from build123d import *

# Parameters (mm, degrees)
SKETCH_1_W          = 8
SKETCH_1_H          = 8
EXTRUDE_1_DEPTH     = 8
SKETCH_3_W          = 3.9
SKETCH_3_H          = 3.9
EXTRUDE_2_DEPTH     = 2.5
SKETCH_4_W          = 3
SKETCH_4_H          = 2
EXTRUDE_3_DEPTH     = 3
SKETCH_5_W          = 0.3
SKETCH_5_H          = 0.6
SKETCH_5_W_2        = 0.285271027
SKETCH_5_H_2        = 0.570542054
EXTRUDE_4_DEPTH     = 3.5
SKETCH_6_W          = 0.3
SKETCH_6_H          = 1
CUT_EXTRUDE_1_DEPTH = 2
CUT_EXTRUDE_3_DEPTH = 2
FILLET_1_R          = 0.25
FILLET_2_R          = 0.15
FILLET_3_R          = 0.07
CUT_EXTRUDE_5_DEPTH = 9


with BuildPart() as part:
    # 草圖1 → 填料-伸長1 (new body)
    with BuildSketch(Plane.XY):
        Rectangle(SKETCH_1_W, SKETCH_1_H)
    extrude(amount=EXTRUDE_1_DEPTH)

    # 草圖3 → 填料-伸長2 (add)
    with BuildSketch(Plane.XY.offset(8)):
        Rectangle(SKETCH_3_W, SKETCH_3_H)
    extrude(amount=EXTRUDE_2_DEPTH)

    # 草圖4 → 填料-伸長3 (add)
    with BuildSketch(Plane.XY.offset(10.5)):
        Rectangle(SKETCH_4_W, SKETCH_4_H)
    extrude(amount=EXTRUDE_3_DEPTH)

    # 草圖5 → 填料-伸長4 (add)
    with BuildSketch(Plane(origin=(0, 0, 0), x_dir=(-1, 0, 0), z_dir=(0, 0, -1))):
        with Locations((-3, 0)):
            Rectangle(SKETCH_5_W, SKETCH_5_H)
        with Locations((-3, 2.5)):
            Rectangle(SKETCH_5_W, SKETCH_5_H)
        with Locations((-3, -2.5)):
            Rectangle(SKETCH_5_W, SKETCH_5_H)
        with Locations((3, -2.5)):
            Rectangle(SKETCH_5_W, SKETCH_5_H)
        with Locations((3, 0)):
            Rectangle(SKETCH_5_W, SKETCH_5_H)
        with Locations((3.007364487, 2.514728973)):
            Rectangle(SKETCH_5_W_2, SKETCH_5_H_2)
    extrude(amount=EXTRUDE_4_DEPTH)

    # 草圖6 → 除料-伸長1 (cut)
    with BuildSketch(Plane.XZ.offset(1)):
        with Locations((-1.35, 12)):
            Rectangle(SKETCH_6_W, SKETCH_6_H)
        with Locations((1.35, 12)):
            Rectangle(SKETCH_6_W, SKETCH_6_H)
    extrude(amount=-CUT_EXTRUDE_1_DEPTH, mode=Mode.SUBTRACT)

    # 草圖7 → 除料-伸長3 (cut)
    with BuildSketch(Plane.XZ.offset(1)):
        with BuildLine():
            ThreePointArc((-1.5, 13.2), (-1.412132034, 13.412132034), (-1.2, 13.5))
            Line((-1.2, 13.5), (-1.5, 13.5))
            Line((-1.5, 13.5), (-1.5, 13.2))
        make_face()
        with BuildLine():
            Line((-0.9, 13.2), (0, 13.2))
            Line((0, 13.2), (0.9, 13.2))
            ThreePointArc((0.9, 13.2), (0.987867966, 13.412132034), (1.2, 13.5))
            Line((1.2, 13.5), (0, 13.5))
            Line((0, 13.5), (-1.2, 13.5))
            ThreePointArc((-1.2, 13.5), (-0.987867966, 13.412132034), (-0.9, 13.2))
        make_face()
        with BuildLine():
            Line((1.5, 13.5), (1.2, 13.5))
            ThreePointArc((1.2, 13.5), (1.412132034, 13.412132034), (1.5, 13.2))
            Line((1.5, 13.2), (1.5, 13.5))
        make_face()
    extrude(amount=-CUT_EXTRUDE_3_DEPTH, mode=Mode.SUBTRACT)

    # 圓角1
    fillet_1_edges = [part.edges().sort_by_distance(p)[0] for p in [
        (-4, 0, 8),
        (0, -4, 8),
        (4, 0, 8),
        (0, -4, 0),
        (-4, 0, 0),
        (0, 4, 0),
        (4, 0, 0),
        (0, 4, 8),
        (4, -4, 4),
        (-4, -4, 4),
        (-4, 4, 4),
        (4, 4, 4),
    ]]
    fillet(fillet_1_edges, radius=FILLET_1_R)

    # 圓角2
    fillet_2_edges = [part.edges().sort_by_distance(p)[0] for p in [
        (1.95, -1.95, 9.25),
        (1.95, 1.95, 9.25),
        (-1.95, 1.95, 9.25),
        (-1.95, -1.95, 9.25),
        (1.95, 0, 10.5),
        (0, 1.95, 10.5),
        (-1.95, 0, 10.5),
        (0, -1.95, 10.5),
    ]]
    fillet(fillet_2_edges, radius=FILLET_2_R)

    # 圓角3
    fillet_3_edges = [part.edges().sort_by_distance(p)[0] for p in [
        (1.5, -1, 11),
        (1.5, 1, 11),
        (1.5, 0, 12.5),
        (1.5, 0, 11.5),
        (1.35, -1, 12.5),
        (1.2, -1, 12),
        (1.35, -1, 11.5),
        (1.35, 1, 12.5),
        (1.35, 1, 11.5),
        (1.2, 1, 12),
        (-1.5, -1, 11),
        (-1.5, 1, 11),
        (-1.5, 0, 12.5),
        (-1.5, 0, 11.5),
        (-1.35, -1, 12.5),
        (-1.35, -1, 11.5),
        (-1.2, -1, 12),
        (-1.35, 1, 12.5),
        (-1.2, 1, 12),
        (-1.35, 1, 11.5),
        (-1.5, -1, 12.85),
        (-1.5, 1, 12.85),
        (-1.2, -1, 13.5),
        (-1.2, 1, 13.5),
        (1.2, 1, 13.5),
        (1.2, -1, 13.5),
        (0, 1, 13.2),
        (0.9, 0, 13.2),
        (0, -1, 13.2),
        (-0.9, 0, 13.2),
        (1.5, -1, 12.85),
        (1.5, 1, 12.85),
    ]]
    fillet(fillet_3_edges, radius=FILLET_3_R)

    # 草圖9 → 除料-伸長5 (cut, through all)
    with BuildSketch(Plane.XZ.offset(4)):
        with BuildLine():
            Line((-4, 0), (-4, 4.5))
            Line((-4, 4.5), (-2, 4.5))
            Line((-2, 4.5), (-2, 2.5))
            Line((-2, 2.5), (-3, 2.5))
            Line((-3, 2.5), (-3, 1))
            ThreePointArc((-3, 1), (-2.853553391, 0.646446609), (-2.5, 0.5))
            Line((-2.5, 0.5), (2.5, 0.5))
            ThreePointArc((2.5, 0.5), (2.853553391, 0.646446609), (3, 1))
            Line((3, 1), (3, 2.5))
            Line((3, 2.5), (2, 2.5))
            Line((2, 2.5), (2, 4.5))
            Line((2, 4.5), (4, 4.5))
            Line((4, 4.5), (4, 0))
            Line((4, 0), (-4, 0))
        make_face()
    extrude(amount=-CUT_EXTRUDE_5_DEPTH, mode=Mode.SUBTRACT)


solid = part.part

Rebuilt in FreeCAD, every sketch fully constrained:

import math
import FreeCAD as App
import Part
import Sketcher

V = App.Vector
Q = App.Units.Quantity


def edges_at(feature, points):
    """Names of the edges that pass closest to the given points."""
    edges = feature.Shape.Edges
    near = lambda p: min(range(len(edges)), key=lambda i: edges[i].distToShape(Part.Vertex(*p))[0])
    return sorted({f"Edge{near(p) + 1}" for p in points})

doc = App.newDocument("Part")
body = doc.addObject("PartDesign::Body", "Body")
body.AllowCompound = True

# Sketch on XY plane
sketch1 = doc.addObject("Sketcher::SketchObject", "Sketch")
body.addObject(sketch1)
sketch1.AttachmentSupport = (doc.XY_Plane, [""])
sketch1.MapMode = "FlatFace"
sketch1.addGeometry(Part.LineSegment(V(-4, 4, 0), V(-4, -4, 0)), False)
sketch1.addGeometry(Part.LineSegment(V(-4, -4, 0), V(4, -4, 0)), False)
sketch1.addGeometry(Part.LineSegment(V(4, -4, 0), V(4, 4, 0)), False)
sketch1.addGeometry(Part.LineSegment(V(4, 4, 0), V(-4, 4, 0)), False)
sketch1.addConstraint(Sketcher.Constraint("Coincident", 0, 2, 1, 1))
sketch1.addConstraint(Sketcher.Constraint("Coincident", 1, 2, 2, 1))
sketch1.addConstraint(Sketcher.Constraint("Coincident", 2, 2, 3, 1))
sketch1.addConstraint(Sketcher.Constraint("Coincident", 3, 2, 0, 1))
sketch1.addConstraint(Sketcher.Constraint("Vertical", 0))
sketch1.addConstraint(Sketcher.Constraint("Horizontal", 1))
sketch1.addConstraint(Sketcher.Constraint("Vertical", 2))
sketch1.addConstraint(Sketcher.Constraint("Horizontal", 3))
sketch1.addConstraint(Sketcher.Constraint("Symmetric", 0, 2, 2, 2, -1, 1))
sketch1.addConstraint(Sketcher.Constraint("Equal", 3, 0))
sketch1.addConstraint(Sketcher.Constraint("DistanceX", 1, 1, 1, 2, Q("8 mm")))
pad1 = doc.addObject("PartDesign::Pad", "Pad")
body.addObject(pad1)
pad1.Profile = sketch1
pad1.Length = 8

# Sketch on XY plane
sketch2 = doc.addObject("Sketcher::SketchObject", "Sketch001")
body.addObject(sketch2)
sketch2.AttachmentSupport = (doc.XY_Plane, [""])
sketch2.MapMode = "FlatFace"
sketch2.AttachmentOffset = App.Placement(V(0, 0, 8), App.Rotation())
sketch2.addGeometry(Part.LineSegment(V(-1.9, 1.9, 0), V(-1.9, -1.9, 0)), False)
sketch2.addGeometry(Part.LineSegment(V(-1.9, -1.9, 0), V(1.9, -1.9, 0)), False)
sketch2.addGeometry(Part.LineSegment(V(1.9, -1.9, 0), V(1.9, 1.9, 0)), False)
sketch2.addGeometry(Part.LineSegment(V(1.9, 1.9, 0), V(-1.9, 1.9, 0)), False)
sketch2.addConstraint(Sketcher.Constraint("Coincident", 0, 2, 1, 1))
sketch2.addConstraint(Sketcher.Constraint("Coincident", 1, 2, 2, 1))
sketch2.addConstraint(Sketcher.Constraint("Coincident", 2, 2, 3, 1))
sketch2.addConstraint(Sketcher.Constraint("Coincident", 3, 2, 0, 1))
sketch2.addConstraint(Sketcher.Constraint("Vertical", 0))
sketch2.addConstraint(Sketcher.Constraint("Horizontal", 1))
sketch2.addConstraint(Sketcher.Constraint("Vertical", 2))
sketch2.addConstraint(Sketcher.Constraint("Horizontal", 3))
sketch2.addConstraint(Sketcher.Constraint("Symmetric", 0, 2, 2, 2, -1, 1))
sketch2.addConstraint(Sketcher.Constraint("Equal", 3, 0))
sketch2.addConstraint(Sketcher.Constraint("DistanceX", 1, 1, 1, 2, Q("3.9 mm")))
pad2 = doc.addObject("PartDesign::Pad", "Pad001")
body.addObject(pad2)
pad2.Profile = sketch2
pad2.Length = 2.5

# Sketch on XY plane
sketch3 = doc.addObject("Sketcher::SketchObject", "Sketch002")
body.addObject(sketch3)
sketch3.AttachmentSupport = (doc.XY_Plane, [""])
sketch3.MapMode = "FlatFace"
sketch3.AttachmentOffset = App.Placement(V(0, 0, 10.5), App.Rotation())
sketch3.addGeometry(Part.LineSegment(V(-1.5, 1, 0), V(-1.5, -1, 0)), False)
sketch3.addGeometry(Part.LineSegment(V(-1.5, -1, 0), V(1.5, -1, 0)), False)
sketch3.addGeometry(Part.LineSegment(V(1.5, -1, 0), V(1.5, 1, 0)), False)
sketch3.addGeometry(Part.LineSegment(V(1.5, 1, 0), V(-1.5, 1, 0)), False)
sketch3.addConstraint(Sketcher.Constraint("Coincident", 0, 2, 1, 1))
sketch3.addConstraint(Sketcher.Constraint("Coincident", 1, 2, 2, 1))
sketch3.addConstraint(Sketcher.Constraint("Coincident", 2, 2, 3, 1))
sketch3.addConstraint(Sketcher.Constraint("Coincident", 3, 2, 0, 1))
sketch3.addConstraint(Sketcher.Constraint("Vertical", 0))
sketch3.addConstraint(Sketcher.Constraint("Horizontal", 1))
sketch3.addConstraint(Sketcher.Constraint("Vertical", 2))
sketch3.addConstraint(Sketcher.Constraint("Horizontal", 3))
sketch3.addConstraint(Sketcher.Constraint("Symmetric", 0, 2, 2, 2, -1, 1))
sketch3.addConstraint(Sketcher.Constraint("DistanceX", 1, 1, 1, 2, Q("3 mm")))
sketch3.addConstraint(Sketcher.Constraint("DistanceY", 0, 2, 0, 1, Q("2 mm")))
pad3 = doc.addObject("PartDesign::Pad", "Pad002")
body.addObject(pad3)
pad3.Profile = sketch3
pad3.Length = 3

# Sketch on XY plane
sketch4 = doc.addObject("Sketcher::SketchObject", "Sketch003")
body.addObject(sketch4)
sketch4.AttachmentSupport = (doc.XY_Plane, [""])
sketch4.MapMode = "FlatFace"
sketch4.addGeometry(Part.LineSegment(V(3.15, 0.3, 0), V(3.15, -0.3, 0)), False)
sketch4.addGeometry(Part.LineSegment(V(3.15, -0.3, 0), V(2.85, -0.3, 0)), False)
sketch4.addGeometry(Part.LineSegment(V(2.85, -0.3, 0), V(2.85, 0.3, 0)), False)
sketch4.addGeometry(Part.LineSegment(V(2.85, 0.3, 0), V(3.15, 0.3, 0)), False)
sketch4.addGeometry(Part.LineSegment(V(3.15, 2.8, 0), V(3.15, 2.2, 0)), False)
sketch4.addGeometry(Part.LineSegment(V(3.15, 2.2, 0), V(2.85, 2.2, 0)), False)
sketch4.addGeometry(Part.LineSegment(V(2.85, 2.2, 0), V(2.85, 2.8, 0)), False)
sketch4.addGeometry(Part.LineSegment(V(2.85, 2.8, 0), V(3.15, 2.8, 0)), False)
sketch4.addGeometry(Part.LineSegment(V(3.15, -2.2, 0), V(3.15, -2.8, 0)), False)
sketch4.addGeometry(Part.LineSegment(V(3.15, -2.8, 0), V(2.85, -2.8, 0)), False)
sketch4.addGeometry(Part.LineSegment(V(2.85, -2.8, 0), V(2.85, -2.2, 0)), False)
sketch4.addGeometry(Part.LineSegment(V(2.85, -2.2, 0), V(3.15, -2.2, 0)), False)
sketch4.addGeometry(Part.LineSegment(V(-2.85, -2.2, 0), V(-2.85, -2.8, 0)), False)
sketch4.addGeometry(Part.LineSegment(V(-2.85, -2.8, 0), V(-3.15, -2.8, 0)), False)
sketch4.addGeometry(Part.LineSegment(V(-3.15, -2.8, 0), V(-3.15, -2.2, 0)), False)
sketch4.addGeometry(Part.LineSegment(V(-3.15, -2.2, 0), V(-2.85, -2.2, 0)), False)
sketch4.addGeometry(Part.LineSegment(V(-2.85, 0.3, 0), V(-2.85, -0.3, 0)), False)
sketch4.addGeometry(Part.LineSegment(V(-2.85, -0.3, 0), V(-3.15, -0.3, 0)), False)
sketch4.addGeometry(Part.LineSegment(V(-3.15, -0.3, 0), V(-3.15, 0.3, 0)), False)
sketch4.addGeometry(Part.LineSegment(V(-3.15, 0.3, 0), V(-2.85, 0.3, 0)), False)
sketch4.addGeometry(Part.LineSegment(V(-2.86, 2.8, 0), V(-2.86, 2.23, 0)), False)
sketch4.addGeometry(Part.LineSegment(V(-2.86, 2.23, 0), V(-3.15, 2.23, 0)), False)
sketch4.addGeometry(Part.LineSegment(V(-3.15, 2.23, 0), V(-3.15, 2.8, 0)), False)
sketch4.addGeometry(Part.LineSegment(V(-3.15, 2.8, 0), V(-2.86, 2.8, 0)), False)
sketch4.addConstraint(Sketcher.Constraint("Coincident", 0, 2, 1, 1))
sketch4.addConstraint(Sketcher.Constraint("Coincident", 1, 2, 2, 1))
sketch4.addConstraint(Sketcher.Constraint("Coincident", 2, 2, 3, 1))
sketch4.addConstraint(Sketcher.Constraint("Coincident", 3, 2, 0, 1))
sketch4.addConstraint(Sketcher.Constraint("Coincident", 4, 2, 5, 1))
sketch4.addConstraint(Sketcher.Constraint("Coincident", 5, 2, 6, 1))
sketch4.addConstraint(Sketcher.Constraint("Coincident", 6, 2, 7, 1))
sketch4.addConstraint(Sketcher.Constraint("Coincident", 7, 2, 4, 1))
sketch4.addConstraint(Sketcher.Constraint("Coincident", 8, 2, 9, 1))
sketch4.addConstraint(Sketcher.Constraint("Coincident", 9, 2, 10, 1))
sketch4.addConstraint(Sketcher.Constraint("Coincident", 10, 2, 11, 1))
sketch4.addConstraint(Sketcher.Constraint("Coincident", 11, 2, 8, 1))
sketch4.addConstraint(Sketcher.Constraint("Coincident", 12, 2, 13, 1))
sketch4.addConstraint(Sketcher.Constraint("Coincident", 13, 2, 14, 1))
sketch4.addConstraint(Sketcher.Constraint("Coincident", 14, 2, 15, 1))
sketch4.addConstraint(Sketcher.Constraint("Coincident", 15, 2, 12, 1))
sketch4.addConstraint(Sketcher.Constraint("Coincident", 16, 2, 17, 1))
sketch4.addConstraint(Sketcher.Constraint("Coincident", 17, 2, 18, 1))
sketch4.addConstraint(Sketcher.Constraint("Coincident", 18, 2, 19, 1))
sketch4.addConstraint(Sketcher.Constraint("Coincident", 19, 2, 16, 1))
sketch4.addConstraint(Sketcher.Constraint("Coincident", 20, 2, 21, 1))
sketch4.addConstraint(Sketcher.Constraint("Coincident", 21, 2, 22, 1))
sketch4.addConstraint(Sketcher.Constraint("Coincident", 22, 2, 23, 1))
sketch4.addConstraint(Sketcher.Constraint("Coincident", 23, 2, 20, 1))
sketch4.addConstraint(Sketcher.Constraint("Vertical", 0))
sketch4.addConstraint(Sketcher.Constraint("Horizontal", 1))
sketch4.addConstraint(Sketcher.Constraint("Vertical", 2))
sketch4.addConstraint(Sketcher.Constraint("Horizontal", 3))
sketch4.addConstraint(Sketcher.Constraint("Vertical", 4))
sketch4.addConstraint(Sketcher.Constraint("Horizontal", 5))
sketch4.addConstraint(Sketcher.Constraint("Vertical", 6))
sketch4.addConstraint(Sketcher.Constraint("Horizontal", 7))
sketch4.addConstraint(Sketcher.Constraint("Vertical", 8))
sketch4.addConstraint(Sketcher.Constraint("Horizontal", 9))
sketch4.addConstraint(Sketcher.Constraint("Vertical", 10))
sketch4.addConstraint(Sketcher.Constraint("Horizontal", 11))
sketch4.addConstraint(Sketcher.Constraint("Vertical", 12))
sketch4.addConstraint(Sketcher.Constraint("Horizontal", 13))
sketch4.addConstraint(Sketcher.Constraint("Vertical", 14))
sketch4.addConstraint(Sketcher.Constraint("Horizontal", 15))
sketch4.addConstraint(Sketcher.Constraint("Vertical", 16))
sketch4.addConstraint(Sketcher.Constraint("Horizontal", 17))
sketch4.addConstraint(Sketcher.Constraint("Vertical", 18))
sketch4.addConstraint(Sketcher.Constraint("Horizontal", 19))
sketch4.addConstraint(Sketcher.Constraint("Vertical", 20))
sketch4.addConstraint(Sketcher.Constraint("Horizontal", 21))
sketch4.addConstraint(Sketcher.Constraint("Vertical", 22))
sketch4.addConstraint(Sketcher.Constraint("Horizontal", 23))
sketch4.addConstraint(Sketcher.Constraint("Symmetric", 6, 2, 12, 2, -1, 1))
sketch4.addConstraint(Sketcher.Constraint("Symmetric", 4, 2, 14, 2, -1, 1))
sketch4.addConstraint(Sketcher.Constraint("Symmetric", 2, 2, 16, 2, -1, 1))
sketch4.addConstraint(Sketcher.Constraint("Symmetric", 0, 2, 18, 2, -1, 1))
sketch4.addConstraint(Sketcher.Constraint("Symmetric", 8, 2, 22, 2, -1, 1))
sketch4.addConstraint(Sketcher.Constraint("Symmetric", 9, 2, 12, 2, -2))
sketch4.addConstraint(Sketcher.Constraint("Symmetric", 11, 2, 14, 2, -2))
sketch4.addConstraint(Sketcher.Constraint("Horizontal", 1, 2, 16, 2))
sketch4.addConstraint(Sketcher.Constraint("Vertical", 3, 2, 4, 2))
sketch4.addConstraint(Sketcher.Constraint("Vertical", 2, 2, 5, 2))
sketch4.addConstraint(Sketcher.Constraint("Equal", 2, 4))
sketch4.addConstraint(Sketcher.Constraint("DistanceX", 1, 2, 1, 1, Q("0.3 mm")))
sketch4.addConstraint(Sketcher.Constraint("DistanceY", 0, 2, 0, 1, Q("0.6 mm")))
sketch4.addConstraint(Sketcher.Constraint("DistanceY", 8, 2, 4, 2, Q("5 mm")))
sketch4.addConstraint(Sketcher.Constraint("DistanceX", 12, 2, 8, 2, Q("6 mm")))
sketch4.addConstraint(Sketcher.Constraint("DistanceX", 21, 2, 21, 1, Q("0.285271 mm")))
sketch4.addConstraint(Sketcher.Constraint("DistanceY", 20, 2, 20, 1, Q("0.570542 mm")))
pad4 = doc.addObject("PartDesign::Pad", "Pad003")
body.addObject(pad4)
pad4.Profile = sketch4
pad4.Length = 3.5
pad4.Reversed = True

# Sketch on XZ plane
sketch5 = doc.addObject("Sketcher::SketchObject", "Sketch004")
body.addObject(sketch5)
sketch5.AttachmentSupport = (doc.XZ_Plane, [""])
sketch5.MapMode = "FlatFace"
sketch5.AttachmentOffset = App.Placement(V(0, 0, 1), App.Rotation())
sketch5.addGeometry(Part.LineSegment(V(-1.5, 12.5, 0), V(-1.5, 11.5, 0)), False)
sketch5.addGeometry(Part.LineSegment(V(-1.5, 11.5, 0), V(-1.2, 11.5, 0)), False)
sketch5.addGeometry(Part.LineSegment(V(-1.2, 11.5, 0), V(-1.2, 12.5, 0)), False)
sketch5.addGeometry(Part.LineSegment(V(-1.2, 12.5, 0), V(-1.5, 12.5, 0)), False)
sketch5.addGeometry(Part.LineSegment(V(1.2, 12.5, 0), V(1.2, 11.5, 0)), False)
sketch5.addGeometry(Part.LineSegment(V(1.2, 11.5, 0), V(1.5, 11.5, 0)), False)
sketch5.addGeometry(Part.LineSegment(V(1.5, 11.5, 0), V(1.5, 12.5, 0)), False)
sketch5.addGeometry(Part.LineSegment(V(1.5, 12.5, 0), V(1.2, 12.5, 0)), False)
sketch5.addConstraint(Sketcher.Constraint("Coincident", 0, 2, 1, 1))
sketch5.addConstraint(Sketcher.Constraint("Coincident", 1, 2, 2, 1))
sketch5.addConstraint(Sketcher.Constraint("Coincident", 2, 2, 3, 1))
sketch5.addConstraint(Sketcher.Constraint("Coincident", 3, 2, 0, 1))
sketch5.addConstraint(Sketcher.Constraint("Coincident", 4, 2, 5, 1))
sketch5.addConstraint(Sketcher.Constraint("Coincident", 5, 2, 6, 1))
sketch5.addConstraint(Sketcher.Constraint("Coincident", 6, 2, 7, 1))
sketch5.addConstraint(Sketcher.Constraint("Coincident", 7, 2, 4, 1))
sketch5.addConstraint(Sketcher.Constraint("Vertical", 0))
sketch5.addConstraint(Sketcher.Constraint("Horizontal", 1))
sketch5.addConstraint(Sketcher.Constraint("Vertical", 2))
sketch5.addConstraint(Sketcher.Constraint("Horizontal", 3))
sketch5.addConstraint(Sketcher.Constraint("Vertical", 4))
sketch5.addConstraint(Sketcher.Constraint("Horizontal", 5))
sketch5.addConstraint(Sketcher.Constraint("Vertical", 6))
sketch5.addConstraint(Sketcher.Constraint("Horizontal", 7))
sketch5.addConstraint(Sketcher.Constraint("Symmetric", 1, 2, 4, 2, -2))
sketch5.addConstraint(Sketcher.Constraint("Symmetric", 3, 2, 6, 2, -2))
sketch5.addConstraint(Sketcher.Constraint("DistanceY", 0, 2, 0, 1, Q("1 mm")))
sketch5.addConstraint(Sketcher.Constraint("DistanceX", 1, 1, 1, 2, Q("0.3 mm")))
sketch5.addConstraint(Sketcher.Constraint("DistanceX", 0, 2, 5, 2, Q("3 mm")))
sketch5.addConstraint(Sketcher.Constraint("DistanceY", -1, 1, 0, 2, Q("11.5 mm")))
pocket1 = doc.addObject("PartDesign::Pocket", "Pocket")
body.addObject(pocket1)
pocket1.Profile = sketch5
pocket1.Length = 2

# Sketch on XZ plane
sketch6 = doc.addObject("Sketcher::SketchObject", "Sketch005")
body.addObject(sketch6)
sketch6.AttachmentSupport = (doc.XZ_Plane, [""])
sketch6.MapMode = "FlatFace"
sketch6.AttachmentOffset = App.Placement(V(0, 0, 1), App.Rotation())
sketch6.addGeometry(Part.ArcOfCircle(Part.Circle(V(-1.2, 13.2, 0), V(0, 0, 1), 0.3), math.radians(90), math.radians(180)), False)
sketch6.addGeometry(Part.LineSegment(V(-1.2, 13.5, 0), V(-1.5, 13.5, 0)), False)
sketch6.addGeometry(Part.LineSegment(V(-1.5, 13.5, 0), V(-1.5, 13.2, 0)), False)
sketch6.addGeometry(Part.LineSegment(V(-0.9, 13.2, 0), V(0.9, 13.2, 0)), False)
sketch6.addGeometry(Part.ArcOfCircle(Part.Circle(V(1.2, 13.2, 0), V(0, 0, 1), 0.3), math.radians(90), math.radians(180)), False)
sketch6.addGeometry(Part.LineSegment(V(1.2, 13.5, 0), V(-1.2, 13.5, 0)), False)
sketch6.addGeometry(Part.ArcOfCircle(Part.Circle(V(-1.2, 13.2, 0), V(0, 0, 1), 0.3), math.radians(0), math.radians(90)), False)
sketch6.addGeometry(Part.LineSegment(V(1.5, 13.5, 0), V(1.2, 13.5, 0)), False)
sketch6.addGeometry(Part.ArcOfCircle(Part.Circle(V(1.2, 13.2, 0), V(0, 0, 1), 0.3), math.radians(0), math.radians(90)), False)
sketch6.addGeometry(Part.LineSegment(V(1.5, 13.2, 0), V(1.5, 13.5, 0)), False)
sketch6.addConstraint(Sketcher.Constraint("Tangent", 0, 1, 1, 1))
sketch6.addConstraint(Sketcher.Constraint("Coincident", 1, 2, 2, 1))
sketch6.addConstraint(Sketcher.Constraint("Tangent", 2, 2, 0, 2))
sketch6.addConstraint(Sketcher.Constraint("Coincident", 3, 2, 4, 2))
sketch6.addConstraint(Sketcher.Constraint("Tangent", 4, 1, 5, 1))
sketch6.addConstraint(Sketcher.Constraint("Tangent", 5, 2, 6, 2))
sketch6.addConstraint(Sketcher.Constraint("Coincident", 6, 1, 3, 1))
sketch6.addConstraint(Sketcher.Constraint("Tangent", 7, 2, 8, 2))
sketch6.addConstraint(Sketcher.Constraint("Tangent", 8, 1, 9, 1))
sketch6.addConstraint(Sketcher.Constraint("Coincident", 9, 2, 7, 1))
sketch6.addConstraint(Sketcher.Constraint("Horizontal", 1))
sketch6.addConstraint(Sketcher.Constraint("Vertical", 2))
sketch6.addConstraint(Sketcher.Constraint("Horizontal", 3))
sketch6.addConstraint(Sketcher.Constraint("Horizontal", 5))
sketch6.addConstraint(Sketcher.Constraint("Horizontal", 7))
sketch6.addConstraint(Sketcher.Constraint("Vertical", 9))
sketch6.addConstraint(Sketcher.Constraint("Coincident", 6, 3, 0, 3))
sketch6.addConstraint(Sketcher.Constraint("Coincident", 8, 3, 4, 3))
sketch6.addConstraint(Sketcher.Constraint("Equal", 0, 4))
sketch6.addConstraint(Sketcher.Constraint("Equal", 4, 6))
sketch6.addConstraint(Sketcher.Constraint("Equal", 6, 8))
sketch6.addConstraint(Sketcher.Constraint("Horizontal", 2, 2, 3, 2))
sketch6.addConstraint(Sketcher.Constraint("Radius", 0, Q("0.3 mm")))
sketch6.addConstraint(Sketcher.Constraint("DistanceX", 3, 1, 3, 2, Q("1.8 mm")))
sketch6.addConstraint(Sketcher.Constraint("DistanceX", 0, 3, -1, 1, Q("1.2 mm")))
sketch6.addConstraint(Sketcher.Constraint("DistanceY", -1, 1, 0, 3, Q("13.2 mm")))
pocket2 = doc.addObject("PartDesign::Pocket", "Pocket001")
body.addObject(pocket2)
pocket2.Profile = sketch6
pocket2.Length = 2
doc.recompute()

fillet = doc.addObject("PartDesign::Fillet", "Fillet")
body.addObject(fillet)
fillet.Base = (pocket2, edges_at(pocket2, [
    (-4, 0, 8),
    (0, -4, 8),
    (4, 0, 8),
    (0, -4, 0),
    (-4, 0, 0),
    (0, 4, 0),
    (4, 0, 0),
    (0, 4, 8),
    (4, -4, 4),
    (-4, -4, 4),
    (-4, 4, 4),
    (4, 4, 4),
]))
fillet.Radius = 0.25
doc.recompute()

fillet2 = doc.addObject("PartDesign::Fillet", "Fillet001")
body.addObject(fillet2)
fillet2.Base = (fillet, edges_at(fillet, [
    (1.95, -1.95, 9.25),
    (1.95, 1.95, 9.25),
    (-1.95, 1.95, 9.25),
    (-1.95, -1.95, 9.25),
    (1.95, 0, 10.5),
    (0, 1.95, 10.5),
    (-1.95, 0, 10.5),
    (0, -1.95, 10.5),
]))
fillet2.Radius = 0.15
doc.recompute()

fillet3 = doc.addObject("PartDesign::Fillet", "Fillet002")
body.addObject(fillet3)
fillet3.Base = (fillet2, edges_at(fillet2, [
    (1.5, -1, 11),
    (1.5, 1, 11),
    (1.5, 0, 12.5),
    (1.5, 0, 11.5),
    (1.35, -1, 12.5),
    (1.2, -1, 12),
    (1.35, -1, 11.5),
    (1.35, 1, 12.5),
    (1.35, 1, 11.5),
    (1.2, 1, 12),
    (-1.5, -1, 11),
    (-1.5, 1, 11),
    (-1.5, 0, 12.5),
    (-1.5, 0, 11.5),
    (-1.35, -1, 12.5),
    (-1.35, -1, 11.5),
    (-1.2, -1, 12),
    (-1.35, 1, 12.5),
    (-1.2, 1, 12),
    (-1.35, 1, 11.5),
    (-1.5, -1, 12.85),
    (-1.5, 1, 12.85),
    (-0.988, -1, 13.412),
    (-0.988, 1, 13.412),
    (1.412, 1, 13.412),
    (1.412, -1, 13.412),
    (0, 1, 13.2),
    (0.9, 0, 13.2),
    (0, -1, 13.2),
    (-0.9, 0, 13.2),
    (1.5, -1, 12.85),
    (1.5, 1, 12.85),
]))
fillet3.Radius = 0.07

# Sketch on XZ plane
sketch7 = doc.addObject("Sketcher::SketchObject", "Sketch006")
body.addObject(sketch7)
sketch7.AttachmentSupport = (doc.XZ_Plane, [""])
sketch7.MapMode = "FlatFace"
sketch7.AttachmentOffset = App.Placement(V(0, 0, 4), App.Rotation())
sketch7.addGeometry(Part.LineSegment(V(-4, 4.5, 0), V(-4, 0, 0)), False)
sketch7.addGeometry(Part.LineSegment(V(-4, 0, 0), V(4, 0, 0)), False)
sketch7.addGeometry(Part.LineSegment(V(4, 0, 0), V(4, 4.5, 0)), False)
sketch7.addGeometry(Part.LineSegment(V(4, 4.5, 0), V(2, 4.5, 0)), False)
sketch7.addGeometry(Part.LineSegment(V(2, 4.5, 0), V(2, 2.5, 0)), False)
sketch7.addGeometry(Part.LineSegment(V(2, 2.5, 0), V(3, 2.5, 0)), False)
sketch7.addGeometry(Part.LineSegment(V(3, 2.5, 0), V(3, 1, 0)), False)
sketch7.addGeometry(Part.ArcOfCircle(Part.Circle(V(2.5, 1, 0), V(0, 0, 1), 0.5), math.radians(-90), math.radians(0)), False)
sketch7.addGeometry(Part.LineSegment(V(2.5, 0.5, 0), V(-2.5, 0.5, 0)), False)
sketch7.addGeometry(Part.ArcOfCircle(Part.Circle(V(-2.5, 1, 0), V(0, 0, 1), 0.5), math.radians(180), math.radians(270)), False)
sketch7.addGeometry(Part.LineSegment(V(-3, 1, 0), V(-3, 2.5, 0)), False)
sketch7.addGeometry(Part.LineSegment(V(-3, 2.5, 0), V(-2, 2.5, 0)), False)
sketch7.addGeometry(Part.LineSegment(V(-2, 2.5, 0), V(-2, 4.5, 0)), False)
sketch7.addGeometry(Part.LineSegment(V(-2, 4.5, 0), V(-4, 4.5, 0)), False)
sketch7.addConstraint(Sketcher.Constraint("Coincident", 0, 2, 1, 1))
sketch7.addConstraint(Sketcher.Constraint("Coincident", 1, 2, 2, 1))
sketch7.addConstraint(Sketcher.Constraint("Coincident", 2, 2, 3, 1))
sketch7.addConstraint(Sketcher.Constraint("Coincident", 3, 2, 4, 1))
sketch7.addConstraint(Sketcher.Constraint("Coincident", 4, 2, 5, 1))
sketch7.addConstraint(Sketcher.Constraint("Coincident", 5, 2, 6, 1))
sketch7.addConstraint(Sketcher.Constraint("Tangent", 6, 2, 7, 2))
sketch7.addConstraint(Sketcher.Constraint("Tangent", 7, 1, 8, 1))
sketch7.addConstraint(Sketcher.Constraint("Tangent", 8, 2, 9, 2))
sketch7.addConstraint(Sketcher.Constraint("Tangent", 9, 1, 10, 1))
sketch7.addConstraint(Sketcher.Constraint("Coincident", 10, 2, 11, 1))
sketch7.addConstraint(Sketcher.Constraint("Coincident", 11, 2, 12, 1))
sketch7.addConstraint(Sketcher.Constraint("Coincident", 12, 2, 13, 1))
sketch7.addConstraint(Sketcher.Constraint("Coincident", 13, 2, 0, 1))
sketch7.addConstraint(Sketcher.Constraint("Vertical", 0))
sketch7.addConstraint(Sketcher.Constraint("Horizontal", 1))
sketch7.addConstraint(Sketcher.Constraint("Vertical", 2))
sketch7.addConstraint(Sketcher.Constraint("Horizontal", 3))
sketch7.addConstraint(Sketcher.Constraint("Vertical", 4))
sketch7.addConstraint(Sketcher.Constraint("Horizontal", 5))
sketch7.addConstraint(Sketcher.Constraint("Vertical", 6))
sketch7.addConstraint(Sketcher.Constraint("Horizontal", 8))
sketch7.addConstraint(Sketcher.Constraint("Vertical", 10))
sketch7.addConstraint(Sketcher.Constraint("Horizontal", 11))
sketch7.addConstraint(Sketcher.Constraint("Vertical", 12))
sketch7.addConstraint(Sketcher.Constraint("Horizontal", 13))
sketch7.addConstraint(Sketcher.Constraint("Equal", 7, 9))
sketch7.addConstraint(Sketcher.Constraint("Symmetric", 0, 2, 1, 2, -1, 1))
sketch7.addConstraint(Sketcher.Constraint("Symmetric", 5, 2, 10, 2, -2))
sketch7.addConstraint(Sketcher.Constraint("Symmetric", 3, 2, 12, 2, -2))
sketch7.addConstraint(Sketcher.Constraint("Equal", 13, 4))
sketch7.addConstraint(Sketcher.Constraint("Radius", 7, Q("0.5 mm")))
sketch7.addConstraint(Sketcher.Constraint("DistanceX", 1, 1, 1, 2, Q("8 mm")))
sketch7.addConstraint(Sketcher.Constraint("DistanceX", 3, 2, 3, 1, Q("2 mm")))
sketch7.addConstraint(Sketcher.Constraint("DistanceX", 5, 1, 5, 2, Q("1 mm")))
sketch7.addConstraint(Sketcher.Constraint("DistanceY", 0, 2, 0, 1, Q("4.5 mm")))
sketch7.addConstraint(Sketcher.Constraint("DistanceY", 6, 2, 6, 1, Q("1.5 mm")))
pocket3 = doc.addObject("PartDesign::Pocket", "Pocket002")
body.addObject(pocket3)
pocket3.Profile = sketch7
pocket3.Type = "ThroughAll"

doc.recompute()
